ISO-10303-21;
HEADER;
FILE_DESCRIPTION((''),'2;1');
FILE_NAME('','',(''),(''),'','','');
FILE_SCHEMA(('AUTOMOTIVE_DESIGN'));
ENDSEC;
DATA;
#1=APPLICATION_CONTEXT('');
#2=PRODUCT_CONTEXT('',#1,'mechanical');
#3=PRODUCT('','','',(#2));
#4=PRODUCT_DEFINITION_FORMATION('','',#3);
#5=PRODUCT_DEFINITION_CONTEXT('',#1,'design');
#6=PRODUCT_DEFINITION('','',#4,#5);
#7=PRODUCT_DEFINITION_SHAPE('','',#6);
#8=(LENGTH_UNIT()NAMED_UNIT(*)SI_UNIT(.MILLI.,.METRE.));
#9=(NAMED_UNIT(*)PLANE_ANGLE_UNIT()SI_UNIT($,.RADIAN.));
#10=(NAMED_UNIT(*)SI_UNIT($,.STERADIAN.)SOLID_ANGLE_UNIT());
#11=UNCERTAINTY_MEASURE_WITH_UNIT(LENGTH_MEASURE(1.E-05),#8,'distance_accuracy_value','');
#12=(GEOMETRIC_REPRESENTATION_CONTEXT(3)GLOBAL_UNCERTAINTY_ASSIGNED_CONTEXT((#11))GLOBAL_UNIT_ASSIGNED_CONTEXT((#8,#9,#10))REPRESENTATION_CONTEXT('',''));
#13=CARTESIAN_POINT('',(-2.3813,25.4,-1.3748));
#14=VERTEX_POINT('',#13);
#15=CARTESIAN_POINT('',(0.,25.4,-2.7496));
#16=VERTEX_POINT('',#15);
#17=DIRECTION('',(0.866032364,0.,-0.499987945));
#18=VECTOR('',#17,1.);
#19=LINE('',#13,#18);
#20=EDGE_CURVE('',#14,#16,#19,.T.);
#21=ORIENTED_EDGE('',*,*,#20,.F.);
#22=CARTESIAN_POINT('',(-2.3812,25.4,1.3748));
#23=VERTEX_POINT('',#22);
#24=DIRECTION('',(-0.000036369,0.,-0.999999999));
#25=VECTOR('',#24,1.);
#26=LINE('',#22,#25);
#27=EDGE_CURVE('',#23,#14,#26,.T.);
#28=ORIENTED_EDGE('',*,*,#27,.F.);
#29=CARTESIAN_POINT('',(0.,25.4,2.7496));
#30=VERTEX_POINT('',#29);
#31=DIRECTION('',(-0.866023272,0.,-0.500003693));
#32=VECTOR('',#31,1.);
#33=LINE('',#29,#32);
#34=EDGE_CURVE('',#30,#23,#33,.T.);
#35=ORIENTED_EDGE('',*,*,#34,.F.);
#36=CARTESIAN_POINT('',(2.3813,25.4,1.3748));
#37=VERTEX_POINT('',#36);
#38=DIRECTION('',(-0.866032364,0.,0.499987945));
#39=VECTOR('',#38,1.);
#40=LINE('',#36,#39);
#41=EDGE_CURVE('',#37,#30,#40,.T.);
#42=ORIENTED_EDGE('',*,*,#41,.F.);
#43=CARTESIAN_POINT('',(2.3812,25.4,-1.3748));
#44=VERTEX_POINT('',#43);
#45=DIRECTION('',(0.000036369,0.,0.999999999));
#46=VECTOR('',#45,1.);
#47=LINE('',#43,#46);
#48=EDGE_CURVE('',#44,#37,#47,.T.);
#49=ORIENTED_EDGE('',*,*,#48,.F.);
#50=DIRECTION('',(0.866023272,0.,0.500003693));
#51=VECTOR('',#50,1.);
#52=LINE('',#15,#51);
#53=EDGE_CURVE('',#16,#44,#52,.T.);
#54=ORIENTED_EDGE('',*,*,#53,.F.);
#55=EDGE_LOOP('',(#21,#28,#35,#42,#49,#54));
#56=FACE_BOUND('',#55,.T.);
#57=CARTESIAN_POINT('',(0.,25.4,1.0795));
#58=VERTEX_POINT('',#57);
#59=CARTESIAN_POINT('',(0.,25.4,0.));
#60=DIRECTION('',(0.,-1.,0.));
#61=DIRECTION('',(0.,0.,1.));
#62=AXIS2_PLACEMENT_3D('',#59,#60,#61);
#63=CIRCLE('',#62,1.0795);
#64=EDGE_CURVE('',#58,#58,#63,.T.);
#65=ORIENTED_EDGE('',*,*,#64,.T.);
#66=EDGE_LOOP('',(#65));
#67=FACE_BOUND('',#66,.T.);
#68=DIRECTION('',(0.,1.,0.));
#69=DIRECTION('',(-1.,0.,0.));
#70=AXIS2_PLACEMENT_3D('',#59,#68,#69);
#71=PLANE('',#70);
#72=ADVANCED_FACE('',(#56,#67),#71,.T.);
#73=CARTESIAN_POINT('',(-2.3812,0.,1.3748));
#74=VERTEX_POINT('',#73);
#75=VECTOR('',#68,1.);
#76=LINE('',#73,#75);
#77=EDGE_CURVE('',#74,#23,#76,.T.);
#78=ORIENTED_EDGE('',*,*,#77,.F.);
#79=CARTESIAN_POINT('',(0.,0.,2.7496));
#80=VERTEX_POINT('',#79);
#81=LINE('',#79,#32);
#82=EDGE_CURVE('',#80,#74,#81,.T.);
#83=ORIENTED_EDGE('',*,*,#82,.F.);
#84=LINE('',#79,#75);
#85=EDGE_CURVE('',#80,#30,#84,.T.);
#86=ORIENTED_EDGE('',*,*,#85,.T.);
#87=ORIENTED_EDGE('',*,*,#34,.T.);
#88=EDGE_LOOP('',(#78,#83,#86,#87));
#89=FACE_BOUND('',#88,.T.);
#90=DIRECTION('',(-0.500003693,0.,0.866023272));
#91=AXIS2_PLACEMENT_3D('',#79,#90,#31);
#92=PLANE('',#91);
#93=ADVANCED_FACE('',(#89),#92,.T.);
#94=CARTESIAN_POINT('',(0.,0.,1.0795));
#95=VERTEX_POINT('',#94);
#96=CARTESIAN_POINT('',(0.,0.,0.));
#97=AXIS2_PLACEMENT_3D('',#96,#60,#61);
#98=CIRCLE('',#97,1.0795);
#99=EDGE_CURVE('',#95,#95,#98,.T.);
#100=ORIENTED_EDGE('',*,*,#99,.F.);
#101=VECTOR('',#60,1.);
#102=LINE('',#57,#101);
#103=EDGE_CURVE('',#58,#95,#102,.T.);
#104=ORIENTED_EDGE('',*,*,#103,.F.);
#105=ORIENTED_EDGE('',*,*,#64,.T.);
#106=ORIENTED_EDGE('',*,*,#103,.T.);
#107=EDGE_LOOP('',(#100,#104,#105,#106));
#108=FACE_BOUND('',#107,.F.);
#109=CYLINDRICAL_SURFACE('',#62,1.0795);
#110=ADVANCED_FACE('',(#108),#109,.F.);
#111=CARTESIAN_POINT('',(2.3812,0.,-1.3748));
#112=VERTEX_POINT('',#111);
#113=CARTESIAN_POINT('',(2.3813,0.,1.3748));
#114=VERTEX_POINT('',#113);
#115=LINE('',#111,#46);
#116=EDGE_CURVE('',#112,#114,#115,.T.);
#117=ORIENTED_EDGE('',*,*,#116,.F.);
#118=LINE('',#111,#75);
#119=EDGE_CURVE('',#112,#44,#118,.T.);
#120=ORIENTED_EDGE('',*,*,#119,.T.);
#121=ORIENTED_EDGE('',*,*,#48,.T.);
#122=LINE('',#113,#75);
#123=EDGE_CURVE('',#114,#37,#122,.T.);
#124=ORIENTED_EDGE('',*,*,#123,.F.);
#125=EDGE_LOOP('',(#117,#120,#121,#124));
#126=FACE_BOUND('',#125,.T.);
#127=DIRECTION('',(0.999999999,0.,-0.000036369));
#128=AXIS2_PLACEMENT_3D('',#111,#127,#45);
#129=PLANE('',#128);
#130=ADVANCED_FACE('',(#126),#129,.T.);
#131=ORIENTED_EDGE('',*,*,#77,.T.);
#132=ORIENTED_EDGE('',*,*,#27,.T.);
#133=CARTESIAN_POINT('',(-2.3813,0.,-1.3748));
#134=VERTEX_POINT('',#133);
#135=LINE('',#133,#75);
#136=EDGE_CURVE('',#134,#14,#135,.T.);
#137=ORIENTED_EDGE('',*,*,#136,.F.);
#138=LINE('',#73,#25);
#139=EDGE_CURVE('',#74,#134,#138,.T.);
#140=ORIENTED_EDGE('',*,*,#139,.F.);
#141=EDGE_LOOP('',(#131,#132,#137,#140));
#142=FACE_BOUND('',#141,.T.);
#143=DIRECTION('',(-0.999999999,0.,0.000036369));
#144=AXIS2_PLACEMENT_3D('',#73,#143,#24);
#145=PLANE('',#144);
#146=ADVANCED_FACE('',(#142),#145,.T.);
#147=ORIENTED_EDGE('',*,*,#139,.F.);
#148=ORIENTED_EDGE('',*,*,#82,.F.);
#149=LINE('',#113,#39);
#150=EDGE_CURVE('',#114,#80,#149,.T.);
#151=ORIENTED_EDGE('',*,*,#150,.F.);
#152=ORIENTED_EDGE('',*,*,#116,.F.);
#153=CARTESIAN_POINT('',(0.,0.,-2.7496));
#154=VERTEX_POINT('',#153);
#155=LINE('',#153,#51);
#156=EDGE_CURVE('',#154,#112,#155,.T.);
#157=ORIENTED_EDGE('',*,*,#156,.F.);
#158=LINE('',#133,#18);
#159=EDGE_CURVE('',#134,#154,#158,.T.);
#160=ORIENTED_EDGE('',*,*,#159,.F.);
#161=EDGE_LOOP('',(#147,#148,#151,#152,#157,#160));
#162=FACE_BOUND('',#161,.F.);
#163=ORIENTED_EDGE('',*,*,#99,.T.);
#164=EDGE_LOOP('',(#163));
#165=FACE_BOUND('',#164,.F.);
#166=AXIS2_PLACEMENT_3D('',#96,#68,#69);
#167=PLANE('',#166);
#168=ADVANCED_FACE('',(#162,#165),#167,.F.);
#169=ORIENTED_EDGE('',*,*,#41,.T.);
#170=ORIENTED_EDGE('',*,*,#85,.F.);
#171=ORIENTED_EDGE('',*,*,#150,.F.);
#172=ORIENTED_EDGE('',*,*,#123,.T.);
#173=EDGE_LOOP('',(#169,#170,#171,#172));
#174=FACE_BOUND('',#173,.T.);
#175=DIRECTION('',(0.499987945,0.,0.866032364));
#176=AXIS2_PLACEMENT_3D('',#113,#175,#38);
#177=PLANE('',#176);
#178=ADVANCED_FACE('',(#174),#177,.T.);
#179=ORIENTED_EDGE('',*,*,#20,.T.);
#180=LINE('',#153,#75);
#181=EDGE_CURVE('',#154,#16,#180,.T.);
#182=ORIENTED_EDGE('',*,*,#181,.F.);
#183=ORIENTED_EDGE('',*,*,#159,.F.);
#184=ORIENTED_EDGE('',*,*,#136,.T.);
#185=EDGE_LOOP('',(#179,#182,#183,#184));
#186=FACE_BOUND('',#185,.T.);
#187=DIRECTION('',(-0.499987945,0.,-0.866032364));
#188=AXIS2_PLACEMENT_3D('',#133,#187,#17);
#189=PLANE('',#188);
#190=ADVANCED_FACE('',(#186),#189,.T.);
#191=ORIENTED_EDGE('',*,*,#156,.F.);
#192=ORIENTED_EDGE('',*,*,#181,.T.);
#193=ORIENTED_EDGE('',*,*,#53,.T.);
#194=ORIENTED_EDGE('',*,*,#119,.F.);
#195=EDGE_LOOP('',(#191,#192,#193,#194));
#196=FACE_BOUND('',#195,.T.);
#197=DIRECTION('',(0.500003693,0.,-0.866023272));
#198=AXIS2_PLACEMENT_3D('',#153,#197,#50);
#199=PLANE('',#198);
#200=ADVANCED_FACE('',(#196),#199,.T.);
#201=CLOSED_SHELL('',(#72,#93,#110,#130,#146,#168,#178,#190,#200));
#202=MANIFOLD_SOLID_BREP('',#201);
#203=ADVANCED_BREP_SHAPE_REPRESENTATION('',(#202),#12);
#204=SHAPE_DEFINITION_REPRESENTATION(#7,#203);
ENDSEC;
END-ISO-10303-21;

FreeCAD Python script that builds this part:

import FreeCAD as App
import Part
import Sketcher

V = App.Vector
Q = App.Units.Quantity

doc = App.newDocument("Part")
body = doc.addObject("PartDesign::Body", "Body")

sketch1 = body.newObject("Sketcher::SketchObject", "Sketch")
sketch1.AttachmentSupport = (doc.getObject("XZ_Plane"), [""])
sketch1.MapMode = "FlatFace"
sketch1.addGeometry([
    Part.LineSegment(V(2.4, -1.4, 0), V(0, -2.7, 0)),
    Part.LineSegment(V(0, -2.7, 0), V(-2.4, -1.4, 0)),
    Part.LineSegment(V(-2.4, -1.4, 0), V(-2.4, 1.4, 0)),
    Part.LineSegment(V(-2.4, 1.4, 0), V(0, 2.7, 0)),
    Part.LineSegment(V(0, 2.7, 0), V(2.4, 1.4, 0)),
    Part.LineSegment(V(2.4, 1.4, 0), V(2.4, -1.4, 0)),
], False)
sketch1.addConstraint([
    Sketcher.Constraint("Coincident", 0, 2, 1, 1),
    Sketcher.Constraint("Coincident", 1, 2, 2, 1),
    Sketcher.Constraint("Coincident", 2, 2, 3, 1),
    Sketcher.Constraint("Coincident", 3, 2, 4, 1),
    Sketcher.Constraint("Coincident", 4, 2, 5, 1),
    Sketcher.Constraint("Coincident", 5, 2, 0, 1),
    Sketcher.Constraint("Vertical", 2),
    Sketcher.Constraint("Vertical", 5),
    Sketcher.Constraint("Symmetric", 0, 2, 3, 2, -1, 1),
    Sketcher.Constraint("Symmetric", 1, 2, 4, 2, -1, 1),
    Sketcher.Constraint("PointOnObject", 0, 2, -2),
    Sketcher.Constraint("Parallel", 0, 3),
    Sketcher.Constraint("Horizontal", 2, 2, 4, 2),
    Sketcher.Constraint("Angle", 0, Q("-149.9998 deg")),
    Sketcher.Constraint("DistanceX", 2, 2, 4, 2, Q("0.1875 in")),
    Sketcher.Constraint("DistanceY", 2, 1, 2, 2, 2.7496),
])
pad1 = body.newObject("PartDesign::Pad", "Pad")
pad1.Profile = sketch1
pad1.Length = Q("1 in")
pad1.Reversed = True

sketch2 = body.newObject("Sketcher::SketchObject", "Sketch001")
sketch2.AttachmentSupport = (doc.getObject("XZ_Plane"), [""])
sketch2.MapMode = "FlatFace"
sketch2.AttachmentOffset = App.Placement(V(0, 0, -1 * 25.4), App.Rotation())
sketch2.addGeometry(Part.Circle(V(0, 0, 0), V(0, 0, 1), 1.1), False)
sketch2.addConstraint([
    Sketcher.Constraint("Coincident", 0, 3, -1, 1),
    Sketcher.Constraint("Diameter", 0, Q("0.085 in")),
])
doc.recompute()
hole = body.newObject("PartDesign::Hole", "Hole")
hole.Profile = sketch2
hole.ThreadType = "None"
hole.Diameter = Q("0.085 in")
hole.DepthType = "ThroughAll"
hole.Reversed = True

doc.recompute()
